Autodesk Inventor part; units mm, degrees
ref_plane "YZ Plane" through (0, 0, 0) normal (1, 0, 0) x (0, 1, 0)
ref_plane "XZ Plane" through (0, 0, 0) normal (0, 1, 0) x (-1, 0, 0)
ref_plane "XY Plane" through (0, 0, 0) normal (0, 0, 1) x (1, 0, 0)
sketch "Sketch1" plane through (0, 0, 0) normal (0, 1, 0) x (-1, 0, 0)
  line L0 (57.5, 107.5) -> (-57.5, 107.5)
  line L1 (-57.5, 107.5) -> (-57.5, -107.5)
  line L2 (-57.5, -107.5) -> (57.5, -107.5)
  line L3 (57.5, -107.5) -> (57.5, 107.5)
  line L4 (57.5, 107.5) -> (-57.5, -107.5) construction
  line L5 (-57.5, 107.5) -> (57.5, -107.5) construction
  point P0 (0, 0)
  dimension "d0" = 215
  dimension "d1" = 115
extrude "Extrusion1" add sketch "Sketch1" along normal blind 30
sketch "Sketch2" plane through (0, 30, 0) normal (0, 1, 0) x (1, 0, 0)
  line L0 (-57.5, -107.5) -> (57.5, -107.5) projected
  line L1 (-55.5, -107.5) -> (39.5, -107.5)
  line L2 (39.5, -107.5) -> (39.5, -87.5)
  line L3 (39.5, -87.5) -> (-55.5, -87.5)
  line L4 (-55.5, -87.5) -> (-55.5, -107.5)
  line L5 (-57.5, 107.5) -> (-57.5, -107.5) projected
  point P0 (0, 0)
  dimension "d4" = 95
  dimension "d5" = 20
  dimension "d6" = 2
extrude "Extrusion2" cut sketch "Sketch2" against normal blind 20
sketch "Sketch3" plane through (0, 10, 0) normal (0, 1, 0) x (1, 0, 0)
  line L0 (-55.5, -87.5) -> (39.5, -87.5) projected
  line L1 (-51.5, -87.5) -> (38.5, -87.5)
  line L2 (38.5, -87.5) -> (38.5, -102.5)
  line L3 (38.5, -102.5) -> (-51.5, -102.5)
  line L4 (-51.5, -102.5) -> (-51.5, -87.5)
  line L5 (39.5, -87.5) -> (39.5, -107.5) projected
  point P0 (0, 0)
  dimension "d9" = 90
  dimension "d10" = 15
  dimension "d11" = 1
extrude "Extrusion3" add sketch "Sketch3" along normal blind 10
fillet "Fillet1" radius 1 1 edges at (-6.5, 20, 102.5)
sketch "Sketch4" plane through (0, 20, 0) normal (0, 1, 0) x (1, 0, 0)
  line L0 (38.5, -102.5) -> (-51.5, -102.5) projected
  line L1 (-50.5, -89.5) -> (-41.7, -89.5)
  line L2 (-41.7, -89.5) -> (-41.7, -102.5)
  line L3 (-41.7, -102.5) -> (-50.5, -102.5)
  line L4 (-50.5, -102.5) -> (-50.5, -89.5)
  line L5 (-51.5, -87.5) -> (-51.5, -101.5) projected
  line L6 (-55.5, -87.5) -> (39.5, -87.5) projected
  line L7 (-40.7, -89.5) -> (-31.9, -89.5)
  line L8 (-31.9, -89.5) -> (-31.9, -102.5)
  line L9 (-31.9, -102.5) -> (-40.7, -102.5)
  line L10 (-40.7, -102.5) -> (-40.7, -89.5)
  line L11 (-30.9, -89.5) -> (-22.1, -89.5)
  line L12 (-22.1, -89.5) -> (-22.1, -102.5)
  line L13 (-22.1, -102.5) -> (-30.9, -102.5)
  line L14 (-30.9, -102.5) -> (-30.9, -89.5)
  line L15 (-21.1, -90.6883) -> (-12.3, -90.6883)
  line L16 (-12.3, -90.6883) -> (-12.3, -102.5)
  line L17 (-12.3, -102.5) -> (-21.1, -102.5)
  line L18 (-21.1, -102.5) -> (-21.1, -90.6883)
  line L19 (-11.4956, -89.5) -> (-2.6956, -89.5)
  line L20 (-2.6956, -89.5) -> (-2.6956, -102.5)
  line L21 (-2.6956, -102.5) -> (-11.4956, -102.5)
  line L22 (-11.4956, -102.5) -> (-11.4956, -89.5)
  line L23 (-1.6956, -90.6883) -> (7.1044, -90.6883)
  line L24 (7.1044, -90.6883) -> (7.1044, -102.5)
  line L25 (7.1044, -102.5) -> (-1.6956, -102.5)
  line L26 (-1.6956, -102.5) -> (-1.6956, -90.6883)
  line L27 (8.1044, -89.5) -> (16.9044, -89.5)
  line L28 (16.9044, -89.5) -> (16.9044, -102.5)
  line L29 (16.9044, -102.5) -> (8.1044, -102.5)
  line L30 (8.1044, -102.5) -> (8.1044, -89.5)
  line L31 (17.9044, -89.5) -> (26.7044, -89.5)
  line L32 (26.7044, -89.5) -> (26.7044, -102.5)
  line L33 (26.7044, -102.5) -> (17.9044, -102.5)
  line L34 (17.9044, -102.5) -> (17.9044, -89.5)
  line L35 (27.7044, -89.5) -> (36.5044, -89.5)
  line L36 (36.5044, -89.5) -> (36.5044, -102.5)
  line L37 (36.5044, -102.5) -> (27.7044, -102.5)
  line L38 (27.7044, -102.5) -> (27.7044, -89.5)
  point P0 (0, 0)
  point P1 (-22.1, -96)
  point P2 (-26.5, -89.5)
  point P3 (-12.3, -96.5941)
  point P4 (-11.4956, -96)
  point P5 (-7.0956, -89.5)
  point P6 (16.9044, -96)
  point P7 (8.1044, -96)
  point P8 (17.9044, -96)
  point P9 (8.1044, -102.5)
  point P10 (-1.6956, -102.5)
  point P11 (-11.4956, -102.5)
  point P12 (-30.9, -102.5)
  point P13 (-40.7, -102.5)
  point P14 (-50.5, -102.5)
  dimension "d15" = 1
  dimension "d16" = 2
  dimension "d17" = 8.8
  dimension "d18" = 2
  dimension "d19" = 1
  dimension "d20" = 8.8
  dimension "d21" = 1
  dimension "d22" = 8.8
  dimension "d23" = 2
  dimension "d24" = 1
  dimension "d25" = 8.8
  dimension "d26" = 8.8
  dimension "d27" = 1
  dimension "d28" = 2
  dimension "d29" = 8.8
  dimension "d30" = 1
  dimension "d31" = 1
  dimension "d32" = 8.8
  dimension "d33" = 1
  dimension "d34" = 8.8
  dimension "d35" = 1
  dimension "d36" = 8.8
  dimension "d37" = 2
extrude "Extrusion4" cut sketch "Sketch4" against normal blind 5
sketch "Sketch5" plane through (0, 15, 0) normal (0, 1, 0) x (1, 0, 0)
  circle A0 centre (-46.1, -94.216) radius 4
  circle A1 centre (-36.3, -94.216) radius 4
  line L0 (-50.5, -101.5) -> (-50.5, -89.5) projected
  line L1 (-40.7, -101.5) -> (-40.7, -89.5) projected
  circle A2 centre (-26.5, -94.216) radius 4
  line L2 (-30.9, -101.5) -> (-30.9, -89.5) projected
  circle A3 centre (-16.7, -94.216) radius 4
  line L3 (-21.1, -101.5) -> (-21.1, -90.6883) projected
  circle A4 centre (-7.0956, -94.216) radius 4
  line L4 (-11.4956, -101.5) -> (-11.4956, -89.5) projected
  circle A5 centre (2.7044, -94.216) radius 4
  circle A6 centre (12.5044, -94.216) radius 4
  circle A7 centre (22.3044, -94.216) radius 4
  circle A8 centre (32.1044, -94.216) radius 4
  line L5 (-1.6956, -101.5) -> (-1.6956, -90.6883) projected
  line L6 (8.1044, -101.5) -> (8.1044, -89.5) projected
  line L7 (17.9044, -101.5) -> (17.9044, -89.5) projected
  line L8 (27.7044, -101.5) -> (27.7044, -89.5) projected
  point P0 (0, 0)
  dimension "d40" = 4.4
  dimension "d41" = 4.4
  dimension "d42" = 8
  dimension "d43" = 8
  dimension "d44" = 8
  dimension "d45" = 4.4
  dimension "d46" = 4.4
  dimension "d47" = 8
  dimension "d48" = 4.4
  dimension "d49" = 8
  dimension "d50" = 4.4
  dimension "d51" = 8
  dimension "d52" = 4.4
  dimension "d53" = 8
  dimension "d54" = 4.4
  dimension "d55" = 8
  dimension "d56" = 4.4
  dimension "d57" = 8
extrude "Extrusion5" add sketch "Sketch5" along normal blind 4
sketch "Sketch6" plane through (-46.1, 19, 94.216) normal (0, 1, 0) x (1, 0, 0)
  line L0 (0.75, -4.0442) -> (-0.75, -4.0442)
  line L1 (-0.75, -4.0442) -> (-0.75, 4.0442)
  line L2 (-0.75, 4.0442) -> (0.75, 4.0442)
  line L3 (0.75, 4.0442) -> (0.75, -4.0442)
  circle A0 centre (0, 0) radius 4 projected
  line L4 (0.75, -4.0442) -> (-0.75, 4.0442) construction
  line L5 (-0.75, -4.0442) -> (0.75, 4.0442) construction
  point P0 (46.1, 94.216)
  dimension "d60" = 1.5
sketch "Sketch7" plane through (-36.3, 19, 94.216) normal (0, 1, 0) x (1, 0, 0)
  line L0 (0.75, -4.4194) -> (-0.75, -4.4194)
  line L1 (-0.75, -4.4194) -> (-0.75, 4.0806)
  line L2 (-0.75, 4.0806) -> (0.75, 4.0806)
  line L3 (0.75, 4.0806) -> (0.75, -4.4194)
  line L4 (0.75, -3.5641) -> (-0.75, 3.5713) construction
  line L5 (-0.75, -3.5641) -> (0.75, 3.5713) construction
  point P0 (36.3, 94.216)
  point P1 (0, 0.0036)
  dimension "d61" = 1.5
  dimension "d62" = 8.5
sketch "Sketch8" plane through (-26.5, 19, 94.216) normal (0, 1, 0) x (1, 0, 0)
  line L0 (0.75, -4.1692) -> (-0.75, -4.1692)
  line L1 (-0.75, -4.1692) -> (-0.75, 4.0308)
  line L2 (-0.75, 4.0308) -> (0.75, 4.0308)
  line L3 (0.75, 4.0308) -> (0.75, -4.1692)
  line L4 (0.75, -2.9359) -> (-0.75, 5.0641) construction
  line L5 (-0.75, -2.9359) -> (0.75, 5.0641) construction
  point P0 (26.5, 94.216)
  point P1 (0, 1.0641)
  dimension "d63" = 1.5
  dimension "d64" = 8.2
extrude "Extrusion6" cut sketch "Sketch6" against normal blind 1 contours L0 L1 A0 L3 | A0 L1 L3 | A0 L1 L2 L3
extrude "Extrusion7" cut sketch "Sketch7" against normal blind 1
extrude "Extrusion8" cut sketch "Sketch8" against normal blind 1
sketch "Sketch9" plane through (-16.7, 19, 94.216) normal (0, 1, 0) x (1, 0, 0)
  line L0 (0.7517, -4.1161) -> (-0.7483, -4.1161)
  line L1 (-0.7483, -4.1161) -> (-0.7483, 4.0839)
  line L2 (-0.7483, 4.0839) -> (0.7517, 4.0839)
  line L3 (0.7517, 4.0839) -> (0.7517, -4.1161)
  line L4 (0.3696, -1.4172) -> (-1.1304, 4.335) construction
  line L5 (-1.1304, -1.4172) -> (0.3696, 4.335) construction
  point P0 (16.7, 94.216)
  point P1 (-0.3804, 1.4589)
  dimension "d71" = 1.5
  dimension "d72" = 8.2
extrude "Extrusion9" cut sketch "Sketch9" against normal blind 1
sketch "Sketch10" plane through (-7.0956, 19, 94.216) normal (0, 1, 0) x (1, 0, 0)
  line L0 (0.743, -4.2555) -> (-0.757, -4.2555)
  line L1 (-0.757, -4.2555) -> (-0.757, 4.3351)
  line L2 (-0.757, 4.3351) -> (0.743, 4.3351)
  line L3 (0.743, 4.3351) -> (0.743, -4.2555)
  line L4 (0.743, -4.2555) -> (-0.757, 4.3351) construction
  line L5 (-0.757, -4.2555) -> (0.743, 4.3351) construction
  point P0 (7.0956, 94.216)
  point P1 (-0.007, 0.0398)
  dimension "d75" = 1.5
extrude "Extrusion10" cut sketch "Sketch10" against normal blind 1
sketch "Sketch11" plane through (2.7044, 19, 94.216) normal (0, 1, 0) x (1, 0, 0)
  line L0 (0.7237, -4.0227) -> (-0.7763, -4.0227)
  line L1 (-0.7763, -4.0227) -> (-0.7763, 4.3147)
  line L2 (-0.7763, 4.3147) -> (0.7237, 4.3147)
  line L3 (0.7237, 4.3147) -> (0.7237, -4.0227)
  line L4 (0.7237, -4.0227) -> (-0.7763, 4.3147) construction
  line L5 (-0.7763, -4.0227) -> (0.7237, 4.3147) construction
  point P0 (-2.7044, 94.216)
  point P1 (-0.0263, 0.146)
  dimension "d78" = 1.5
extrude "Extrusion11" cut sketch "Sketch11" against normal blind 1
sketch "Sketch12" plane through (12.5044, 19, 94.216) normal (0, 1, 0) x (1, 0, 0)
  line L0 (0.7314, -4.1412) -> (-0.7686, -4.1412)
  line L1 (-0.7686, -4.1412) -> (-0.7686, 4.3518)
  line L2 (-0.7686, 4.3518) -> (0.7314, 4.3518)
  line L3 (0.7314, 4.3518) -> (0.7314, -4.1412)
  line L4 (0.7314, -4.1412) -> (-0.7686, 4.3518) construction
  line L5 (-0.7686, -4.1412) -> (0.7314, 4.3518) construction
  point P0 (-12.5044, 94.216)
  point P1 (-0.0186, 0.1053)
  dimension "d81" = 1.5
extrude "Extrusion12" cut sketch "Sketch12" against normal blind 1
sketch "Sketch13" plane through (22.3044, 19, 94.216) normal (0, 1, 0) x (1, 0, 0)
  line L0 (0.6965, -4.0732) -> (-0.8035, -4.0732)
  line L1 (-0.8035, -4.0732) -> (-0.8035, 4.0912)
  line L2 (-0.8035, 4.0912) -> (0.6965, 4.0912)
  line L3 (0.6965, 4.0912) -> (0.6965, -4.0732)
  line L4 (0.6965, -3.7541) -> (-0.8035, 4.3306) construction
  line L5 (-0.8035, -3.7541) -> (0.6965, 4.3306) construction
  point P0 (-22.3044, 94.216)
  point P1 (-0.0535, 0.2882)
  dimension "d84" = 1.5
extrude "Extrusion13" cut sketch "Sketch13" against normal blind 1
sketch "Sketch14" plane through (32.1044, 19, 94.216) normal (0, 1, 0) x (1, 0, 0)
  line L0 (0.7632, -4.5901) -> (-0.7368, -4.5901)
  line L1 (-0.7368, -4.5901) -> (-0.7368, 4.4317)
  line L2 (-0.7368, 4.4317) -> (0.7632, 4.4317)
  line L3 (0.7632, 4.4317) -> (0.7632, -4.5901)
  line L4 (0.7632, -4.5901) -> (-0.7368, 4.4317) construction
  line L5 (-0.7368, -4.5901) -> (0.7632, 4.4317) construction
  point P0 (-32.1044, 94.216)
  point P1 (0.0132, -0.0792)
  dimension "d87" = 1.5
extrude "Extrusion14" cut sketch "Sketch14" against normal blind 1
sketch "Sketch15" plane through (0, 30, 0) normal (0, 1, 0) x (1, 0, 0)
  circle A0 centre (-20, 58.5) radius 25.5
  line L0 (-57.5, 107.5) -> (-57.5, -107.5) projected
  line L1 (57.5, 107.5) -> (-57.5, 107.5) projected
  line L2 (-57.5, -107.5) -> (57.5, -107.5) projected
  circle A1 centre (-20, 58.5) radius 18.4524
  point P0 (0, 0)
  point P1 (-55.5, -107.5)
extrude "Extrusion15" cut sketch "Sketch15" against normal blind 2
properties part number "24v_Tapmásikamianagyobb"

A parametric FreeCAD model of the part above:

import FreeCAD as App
import Part
import Sketcher

V = App.Vector


def edges_at(feature, points):
    """Names of the edges that pass closest to the given points."""
    edges = feature.Shape.Edges
    near = lambda p: min(range(len(edges)), key=lambda i: edges[i].distToShape(Part.Vertex(*p))[0])
    return sorted({f"Edge{near(p) + 1}" for p in points})

doc = App.newDocument("Part")
params = doc.addObject("Spreadsheet::Sheet", "Params")
for row, (alias, value) in enumerate([
    ("sketch1_width", "115 mm"),
    ("sketch1_height", "215 mm"),
    ("pad1_length", "30 mm"),
    ("sketch2_width", "95 mm"),
    ("sketch2_height", "20 mm"),
    ("pocket1_length", "20 mm"),
    ("sketch3_width", "90 mm"),
    ("sketch3_height", "15 mm"),
    ("pad2_length", "10 mm"),
    ("fillet_radius", "1 mm"),
    ("sketch4_width", "8.8 mm"),
    ("sketch4_height", "13 mm"),
    ("pocket2_length", "5 mm"),
    ("sketch5_diameter", "8 mm"),
    ("pad3_length", "4 mm"),
    ("sketch6_width", "1.5 mm"),
    ("pocket3_length", "1 mm"),
    ("sketch7_width", "1.5 mm"),
    ("sketch7_height", "8.5 mm"),
    ("pocket4_length", "1 mm"),
    ("sketch8_width", "1.5 mm"),
    ("sketch8_height", "8.2 mm"),
    ("pocket5_length", "1 mm"),
    ("sketch9_width", "1.5 mm"),
    ("sketch9_height", "8.2 mm"),
    ("pocket6_length", "1 mm"),
    ("sketch10_width", "1.5 mm"),
    ("pocket7_length", "1 mm"),
    ("sketch11_width", "1.5 mm"),
    ("pocket8_length", "1 mm"),
    ("sketch12_width", "1.5 mm"),
    ("pocket9_length", "1 mm"),
    ("sketch13_width", "1.5 mm"),
    ("pocket10_length", "1 mm"),
    ("sketch14_width", "1.5 mm"),
    ("pocket11_length", "1 mm"),
    ("sketch15_diameter", "51 mm"),
    ("pocket12_length", "2 mm"),
], start=1):
    params.set(f"A{row}", alias)
    params.set(f"B{row}", "=" + value)
    params.setAlias(f"B{row}", alias)

body = doc.addObject("PartDesign::Body", "Body")

# Sketch on XZ plane
sketch1 = body.newObject("Sketcher::SketchObject", "Sketch")
sketch1.AttachmentSupport = (doc.getObject("XZ_Plane"), [""])
sketch1.MapMode = "FlatFace"
sketch1.addGeometry([
    Part.LineSegment(V(-58, -108, 0), V(-58, 108, 0)),
    Part.LineSegment(V(-58, 108, 0), V(58, 108, 0)),
    Part.LineSegment(V(58, 108, 0), V(58, -108, 0)),
    Part.LineSegment(V(58, -108, 0), V(-58, -108, 0)),
], False)
sketch1.addConstraint([
    Sketcher.Constraint("Coincident", 0, 2, 1, 1),
    Sketcher.Constraint("Coincident", 1, 2, 2, 1),
    Sketcher.Constraint("Coincident", 2, 2, 3, 1),
    Sketcher.Constraint("Coincident", 3, 2, 0, 1),
    Sketcher.Constraint("Vertical", 0),
    Sketcher.Constraint("Horizontal", 1),
    Sketcher.Constraint("Vertical", 2),
    Sketcher.Constraint("Horizontal", 3),
    Sketcher.Constraint("Symmetric", 0, 2, 2, 2, -1, 1),
    Sketcher.Constraint("DistanceX", 1, 1, 1, 2, 115.0),
    Sketcher.Constraint("DistanceY", 0, 1, 0, 2, 215.0),
])
sketch1.setExpression("Constraints[9]", "Params.sketch1_width")
sketch1.setExpression("Constraints[10]", "Params.sketch1_height")
pad1 = body.newObject("PartDesign::Pad", "Pad")
pad1.Profile = sketch1
pad1.setExpression("Length", "Params.pad1_length")
pad1.Reversed = True

# Sketch on XZ plane
sketch2 = body.newObject("Sketcher::SketchObject", "Sketch001")
sketch2.AttachmentSupport = (doc.getObject("XZ_Plane"), [""])
sketch2.MapMode = "FlatFace"
sketch2.AttachmentOffset = App.Placement(V(0, 0, -30), App.Rotation())
sketch2.addGeometry([
    Part.LineSegment(V(-56, 88, 0), V(-56, 108, 0)),
    Part.LineSegment(V(-56, 108, 0), V(40, 108, 0)),
    Part.LineSegment(V(40, 108, 0), V(40, 88, 0)),
    Part.LineSegment(V(40, 88, 0), V(-56, 88, 0)),
], False)
sketch2.addConstraint([
    Sketcher.Constraint("Coincident", 0, 2, 1, 1),
    Sketcher.Constraint("Coincident", 1, 2, 2, 1),
    Sketcher.Constraint("Coincident", 2, 2, 3, 1),
    Sketcher.Constraint("Coincident", 3, 2, 0, 1),
    Sketcher.Constraint("Vertical", 0),
    Sketcher.Constraint("Horizontal", 1),
    Sketcher.Constraint("Vertical", 2),
    Sketcher.Constraint("Horizontal", 3),
    Sketcher.Constraint("DistanceX", 1, 1, 1, 2, 95.0),
    Sketcher.Constraint("DistanceY", 0, 1, 0, 2, 20.0),
    Sketcher.Constraint("DistanceX", 0, 2, -1, 1, 55.5),
    Sketcher.Constraint("DistanceY", -1, 1, 0, 2, 107.5),
])
sketch2.setExpression("Constraints[8]", "Params.sketch2_width")
sketch2.setExpression("Constraints[9]", "Params.sketch2_height")
pocket1 = body.newObject("PartDesign::Pocket", "Pocket")
pocket1.Profile = sketch2
pocket1.setExpression("Length", "Params.pocket1_length")
pocket1.Reversed = True

# Sketch on XZ plane
sketch3 = body.newObject("Sketcher::SketchObject", "Sketch002")
sketch3.AttachmentSupport = (doc.getObject("XZ_Plane"), [""])
sketch3.MapMode = "FlatFace"
sketch3.AttachmentOffset = App.Placement(V(0, 0, -10), App.Rotation())
sketch3.addGeometry([
    Part.LineSegment(V(38, 88, 0), V(-52, 88, 0)),
    Part.LineSegment(V(-52, 88, 0), V(-52, 102, 0)),
    Part.LineSegment(V(-52, 102, 0), V(38, 102, 0)),
    Part.LineSegment(V(38, 102, 0), V(38, 88, 0)),
], False)
sketch3.addConstraint([
    Sketcher.Constraint("Coincident", 0, 2, 1, 1),
    Sketcher.Constraint("Coincident", 1, 2, 2, 1),
    Sketcher.Constraint("Coincident", 2, 2, 3, 1),
    Sketcher.Constraint("Coincident", 3, 2, 0, 1),
    Sketcher.Constraint("Horizontal", 0),
    Sketcher.Constraint("Vertical", 1),
    Sketcher.Constraint("Horizontal", 2),
    Sketcher.Constraint("Vertical", 3),
    Sketcher.Constraint("DistanceX", 0, 2, 0, 1, 90.0),
    Sketcher.Constraint("DistanceY", 1, 1, 1, 2, 15.0),
    Sketcher.Constraint("DistanceX", 0, 2, -1, 1, 51.5),
    Sketcher.Constraint("DistanceY", -1, 1, 0, 2, 87.5),
])
sketch3.setExpression("Constraints[8]", "Params.sketch3_width")
sketch3.setExpression("Constraints[9]", "Params.sketch3_height")
pad2 = body.newObject("PartDesign::Pad", "Pad001")
pad2.Profile = sketch3
pad2.setExpression("Length", "Params.pad2_length")
pad2.Reversed = True
doc.recompute()

fillet = body.newObject("PartDesign::Fillet", "Fillet")
fillet.Base = (pad2, edges_at(pad2, [(-6.5, 20, 102.5)]))
fillet.setExpression("Radius", "Params.fillet_radius")

# Sketch on XZ plane
sketch4 = body.newObject("Sketcher::SketchObject", "Sketch003")
sketch4.AttachmentSupport = (doc.getObject("XZ_Plane"), [""])
sketch4.MapMode = "FlatFace"
sketch4.AttachmentOffset = App.Placement(V(0, 0, -20), App.Rotation())
sketch4.addGeometry([
    Part.LineSegment(V(-50, 102, 0), V(-42, 102, 0)),  # 0
    Part.LineSegment(V(-42, 102, 0), V(-42, 90, 0)),  # 1
    Part.LineSegment(V(-42, 90, 0), V(-50, 90, 0)),  # 2
    Part.LineSegment(V(-50, 90, 0), V(-50, 102, 0)),  # 3
    Part.LineSegment(V(-41, 102, 0), V(-32, 102, 0)),  # 4
    Part.LineSegment(V(-32, 102, 0), V(-32, 90, 0)),  # 5
    Part.LineSegment(V(-32, 90, 0), V(-41, 90, 0)),  # 6
    Part.LineSegment(V(-41, 90, 0), V(-41, 102, 0)),  # 7
    Part.LineSegment(V(-31, 102, 0), V(-22, 102, 0)),  # 8
    Part.LineSegment(V(-22, 102, 0), V(-22, 90, 0)),  # 9
    Part.LineSegment(V(-22, 90, 0), V(-31, 90, 0)),  # 10
    Part.LineSegment(V(-31, 90, 0), V(-31, 102, 0)),  # 11
    Part.LineSegment(V(-21, 102, 0), V(-12, 102, 0)),  # 12
    Part.LineSegment(V(-12, 102, 0), V(-12, 91, 0)),  # 13
    Part.LineSegment(V(-12, 91, 0), V(-21, 91, 0)),  # 14
    Part.LineSegment(V(-21, 91, 0), V(-21, 102, 0)),  # 15
    Part.LineSegment(V(-11, 102, 0), V(-3, 102, 0)),  # 16
    Part.LineSegment(V(-3, 102, 0), V(-3, 90, 0)),  # 17
    Part.LineSegment(V(-3, 90, 0), V(-11, 90, 0)),  # 18
    Part.LineSegment(V(-11, 90, 0), V(-11, 102, 0)),  # 19
    Part.LineSegment(V(-2, 102, 0), V(7, 102, 0)),  # 20
    Part.LineSegment(V(7, 102, 0), V(7, 91, 0)),  # 21
    Part.LineSegment(V(7, 91, 0), V(-2, 91, 0)),  # 22
    Part.LineSegment(V(-2, 91, 0), V(-2, 102, 0)),  # 23
    Part.LineSegment(V(8, 102, 0), V(17, 102, 0)),  # 24
    Part.LineSegment(V(17, 102, 0), V(17, 90, 0)),  # 25
    Part.LineSegment(V(17, 90, 0), V(8, 90, 0)),  # 26
    Part.LineSegment(V(8, 90, 0), V(8, 102, 0)),  # 27
    Part.LineSegment(V(18, 102, 0), V(27, 102, 0)),  # 28
    Part.LineSegment(V(27, 102, 0), V(27, 90, 0)),  # 29
    Part.LineSegment(V(27, 90, 0), V(18, 90, 0)),  # 30
    Part.LineSegment(V(18, 90, 0), V(18, 102, 0)),  # 31
    Part.LineSegment(V(28, 102, 0), V(37, 102, 0)),  # 32
    Part.LineSegment(V(37, 102, 0), V(37, 90, 0)),  # 33
    Part.LineSegment(V(37, 90, 0), V(28, 90, 0)),  # 34
    Part.LineSegment(V(28, 90, 0), V(28, 102, 0)),  # 35
], False)
sketch4.addConstraint([
    Sketcher.Constraint("Coincident", 0, 2, 1, 1),
    Sketcher.Constraint("Coincident", 1, 2, 2, 1),
    Sketcher.Constraint("Coincident", 2, 2, 3, 1),
    Sketcher.Constraint("Coincident", 3, 2, 0, 1),
    Sketcher.Constraint("Coincident", 4, 2, 5, 1),
    Sketcher.Constraint("Coincident", 5, 2, 6, 1),
    Sketcher.Constraint("Coincident", 6, 2, 7, 1),
    Sketcher.Constraint("Coincident", 7, 2, 4, 1),
    Sketcher.Constraint("Coincident", 8, 2, 9, 1),
    Sketcher.Constraint("Coincident", 9, 2, 10, 1),
    Sketcher.Constraint("Coincident", 10, 2, 11, 1),
    Sketcher.Constraint("Coincident", 11, 2, 8, 1),
    Sketcher.Constraint("Coincident", 12, 2, 13, 1),
    Sketcher.Constraint("Coincident", 13, 2, 14, 1),
    Sketcher.Constraint("Coincident", 14, 2, 15, 1),
    Sketcher.Constraint("Coincident", 15, 2, 12, 1),
    Sketcher.Constraint("Coincident", 16, 2, 17, 1),
    Sketcher.Constraint("Coincident", 17, 2, 18, 1),
    Sketcher.Constraint("Coincident", 18, 2, 19, 1),
    Sketcher.Constraint("Coincident", 19, 2, 16, 1),
    Sketcher.Constraint("Coincident", 20, 2, 21, 1),
    Sketcher.Constraint("Coincident", 21, 2, 22, 1),
    Sketcher.Constraint("Coincident", 22, 2, 23, 1),
    Sketcher.Constraint("Coincident", 23, 2, 20, 1),
    Sketcher.Constraint("Coincident", 24, 2, 25, 1),
    Sketcher.Constraint("Coincident", 25, 2, 26, 1),
    Sketcher.Constraint("Coincident", 26, 2, 27, 1),
    Sketcher.Constraint("Coincident", 27, 2, 24, 1),
    Sketcher.Constraint("Coincident", 28, 2, 29, 1),
    Sketcher.Constraint("Coincident", 29, 2, 30, 1),
    Sketcher.Constraint("Coincident", 30, 2, 31, 1),
    Sketcher.Constraint("Coincident", 31, 2, 28, 1),
    Sketcher.Constraint("Coincident", 32, 2, 33, 1),
    Sketcher.Constraint("Coincident", 33, 2, 34, 1),
    Sketcher.Constraint("Coincident", 34, 2, 35, 1),
    Sketcher.Constraint("Coincident", 35, 2, 32, 1),
    Sketcher.Constraint("Horizontal", 0),
    Sketcher.Constraint("Vertical", 1),
    Sketcher.Constraint("Horizontal", 2),
    Sketcher.Constraint("Vertical", 3),
    Sketcher.Constraint("Horizontal", 4),
    Sketcher.Constraint("Vertical", 5),
    Sketcher.Constraint("Horizontal", 6),
    Sketcher.Constraint("Vertical", 7),
    Sketcher.Constraint("Horizontal", 8),
    Sketcher.Constraint("Vertical", 9),
    Sketcher.Constraint("Horizontal", 10),
    Sketcher.Constraint("Vertical", 11),
    Sketcher.Constraint("Horizontal", 12),
    Sketcher.Constraint("Vertical", 13),
    Sketcher.Constraint("Horizontal", 14),
    Sketcher.Constraint("Vertical", 15),
    Sketcher.Constraint("Horizontal", 16),
    Sketcher.Constraint("Vertical", 17),
    Sketcher.Constraint("Horizontal", 18),
    Sketcher.Constraint("Vertical", 19),
    Sketcher.Constraint("Horizontal", 20),
    Sketcher.Constraint("Vertical", 21),
    Sketcher.Constraint("Horizontal", 22),
    Sketcher.Constraint("Vertical", 23),
    Sketcher.Constraint("Horizontal", 24),
    Sketcher.Constraint("Vertical", 25),
    Sketcher.Constraint("Horizontal", 26),
    Sketcher.Constraint("Vertical", 27),
    Sketcher.Constraint("Horizontal", 28),
    Sketcher.Constraint("Vertical", 29),
    Sketcher.Constraint("Horizontal", 30),
    Sketcher.Constraint("Vertical", 31),
    Sketcher.Constraint("Horizontal", 32),
    Sketcher.Constraint("Vertical", 33),
    Sketcher.Constraint("Horizontal", 34),
    Sketcher.Constraint("Vertical", 35),
    Sketcher.Constraint("Horizontal", 3, 2, 4, 2),
    Sketcher.Constraint("Horizontal", 2, 2, 5, 2),
    Sketcher.Constraint("Horizontal", 7, 2, 8, 2),
    Sketcher.Constraint("Horizontal", 6, 2, 9, 2),
    Sketcher.Constraint("Horizontal", 11, 2, 12, 2),
    Sketcher.Constraint("Horizontal", 15, 2, 16, 2),
    Sketcher.Constraint("Horizontal", 10, 2, 17, 2),
    Sketcher.Constraint("Horizontal", 19, 2, 20, 2),
    Sketcher.Constraint("Horizontal", 14, 2, 21, 2),
    Sketcher.Constraint("Horizontal", 23, 2, 24, 2),
    Sketcher.Constraint("Horizontal", 18, 2, 25, 2),
    Sketcher.Constraint("Horizontal", 27, 2, 28, 2),
    Sketcher.Constraint("Horizontal", 26, 2, 29, 2),
    Sketcher.Constraint("Horizontal", 31, 2, 32, 2),
    Sketcher.Constraint("Horizontal", 30, 2, 33, 2),
    Sketcher.Constraint("Equal", 2, 4),
    Sketcher.Constraint("Equal", 6, 8),
    Sketcher.Constraint("Equal", 10, 12),
    Sketcher.Constraint("Equal", 14, 16),
    Sketcher.Constraint("Equal", 18, 20),
    Sketcher.Constraint("Equal", 22, 24),
    Sketcher.Constraint("Equal", 26, 28),
    Sketcher.Constraint("Equal", 30, 32),
    Sketcher.Constraint("DistanceX", 0, 1, 0, 2, 8.8),
    Sketcher.Constraint("DistanceX", 1, 2, 6, 2, 1.0),
    Sketcher.Constraint("DistanceX", 5, 2, 10, 2, 1.0),
    Sketcher.Constraint("DistanceX", 9, 2, 14, 2, 1.0),
    Sketcher.Constraint("DistanceX", 17, 2, 22, 2, 1.0),
    Sketcher.Constraint("DistanceX", 21, 2, 26, 2, 1.0),
    Sketcher.Constraint("DistanceX", 25, 2, 30, 2, 1.0),
    Sketcher.Constraint("DistanceX", 29, 2, 34, 2, 1.0),
    Sketcher.Constraint("DistanceY", 1, 2, 1, 1, 13.0),
    Sketcher.Constraint("DistanceX", 0, 2, -1, 1, 41.7),
    Sketcher.Constraint("DistanceY", -1, 1, 0, 2, 102.5),
    Sketcher.Constraint("DistanceY", 13, 2, 13, 1, 11.8117),
    Sketcher.Constraint("DistanceX", 16, 2, -1, 1, 2.6956),
])
sketch4.setExpression("Constraints[95]", "Params.sketch4_width")
sketch4.setExpression("Constraints[103]", "Params.sketch4_height")
pocket2 = body.newObject("PartDesign::Pocket", "Pocket001")
pocket2.Profile = sketch4
pocket2.setExpression("Length", "Params.pocket2_length")
pocket2.Reversed = True

# Sketch on XZ plane
sketch5 = body.newObject("Sketcher::SketchObject", "Sketch004")
sketch5.AttachmentSupport = (doc.getObject("XZ_Plane"), [""])
sketch5.MapMode = "FlatFace"
sketch5.AttachmentOffset = App.Placement(V(0, 0, -15), App.Rotation())
sketch5.addGeometry([
    Part.Circle(V(-46.1, 94.2, 0), V(0, 0, 1), 4),  # 0
    Part.Circle(V(-36.3, 94.2, 0), V(0, 0, 1), 4),  # 1
    Part.Circle(V(-26.5, 94.2, 0), V(0, 0, 1), 4),  # 2
    Part.Circle(V(-16.7, 94.2, 0), V(0, 0, 1), 4),  # 3
    Part.Circle(V(-7.1, 94.2, 0), V(0, 0, 1), 4),  # 4
    Part.Circle(V(2.7, 94.2, 0), V(0, 0, 1), 4),  # 5
    Part.Circle(V(12.5, 94.2, 0), V(0, 0, 1), 4),  # 6
    Part.Circle(V(22.3, 94.2, 0), V(0, 0, 1), 4),  # 7
    Part.Circle(V(32.1, 94.2, 0), V(0, 0, 1), 4),  # 8
], False)
sketch5.addConstraint([
    Sketcher.Constraint("Equal", 0, 1),
    Sketcher.Constraint("Equal", 1, 2),
    Sketcher.Constraint("Equal", 2, 3),
    Sketcher.Constraint("Equal", 3, 4),
    Sketcher.Constraint("Equal", 4, 5),
    Sketcher.Constraint("Equal", 5, 6),
    Sketcher.Constraint("Equal", 6, 7),
    Sketcher.Constraint("Equal", 7, 8),
    Sketcher.Constraint("Horizontal", 0, 3, 1, 3),
    Sketcher.Constraint("Horizontal", 1, 3, 2, 3),
    Sketcher.Constraint("Horizontal", 2, 3, 3, 3),
    Sketcher.Constraint("Horizontal", 3, 3, 4, 3),
    Sketcher.Constraint("Horizontal", 4, 3, 5, 3),
    Sketcher.Constraint("Horizontal", 5, 3, 6, 3),
    Sketcher.Constraint("Horizontal", 6, 3, 7, 3),
    Sketcher.Constraint("Horizontal", 7, 3, 8, 3),
    Sketcher.Constraint("Diameter", 0, 8.0),
    Sketcher.Constraint("DistanceX", 0, 3, -1, 1, 46.1),
    Sketcher.Constraint("DistanceX", 1, 3, -1, 1, 36.3),
    Sketcher.Constraint("DistanceX", 2, 3, -1, 1, 26.5),
    Sketcher.Constraint("DistanceX", 3, 3, -1, 1, 16.7),
    Sketcher.Constraint("DistanceX", 4, 3, 5, 3, 9.8),
    Sketcher.Constraint("DistanceX", 5, 3, 6, 3, 9.8),
    Sketcher.Constraint("DistanceX", 6, 3, 7, 3, 9.8),
    Sketcher.Constraint("DistanceX", 7, 3, 8, 3, 9.8),
    Sketcher.Constraint("DistanceY", -1, 1, 0, 3, 94.216),
    Sketcher.Constraint("DistanceX", 4, 3, -1, 1, 7.0956),
])
sketch5.setExpression("Constraints[16]", "Params.sketch5_diameter")
pad3 = body.newObject("PartDesign::Pad", "Pad002")
pad3.Profile = sketch5
pad3.setExpression("Length", "Params.pad3_length")
pad3.Reversed = True

# Sketch on XZ plane
sketch6 = body.newObject("Sketcher::SketchObject", "Sketch005")
sketch6.AttachmentSupport = (doc.getObject("XZ_Plane"), [""])
sketch6.MapMode = "FlatFace"
sketch6.AttachmentOffset = App.Placement(V(0, 0, -19), App.Rotation())
sketch6.addGeometry([
    Part.LineSegment(V(-46.9, 98.3, 0), V(-45.4, 98.3, 0)),
    Part.LineSegment(V(-45.4, 98.3, 0), V(-45.4, 90.2, 0)),
    Part.LineSegment(V(-45.4, 90.2, 0), V(-46.9, 90.2, 0)),
    Part.LineSegment(V(-46.9, 90.2, 0), V(-46.9, 98.3, 0)),
], False)
sketch6.addConstraint([
    Sketcher.Constraint("Coincident", 0, 2, 1, 1),
    Sketcher.Constraint("Coincident", 1, 2, 2, 1),
    Sketcher.Constraint("Coincident", 2, 2, 3, 1),
    Sketcher.Constraint("Coincident", 3, 2, 0, 1),
    Sketcher.Constraint("Horizontal", 0),
    Sketcher.Constraint("Vertical", 1),
    Sketcher.Constraint("Horizontal", 2),
    Sketcher.Constraint("Vertical", 3),
    Sketcher.Constraint("DistanceX", 0, 1, 0, 2, 1.5),
    Sketcher.Constraint("DistanceX", 0, 2, -1, 1, 45.35),
    Sketcher.Constraint("DistanceY", 1, 2, 1, 1, 8.0884),
    Sketcher.Constraint("DistanceY", -1, 1, 0, 2, 98.2602),
])
sketch6.setExpression("Constraints[8]", "Params.sketch6_width")
pocket3 = body.newObject("PartDesign::Pocket", "Pocket002")
pocket3.Profile = sketch6
pocket3.setExpression("Length", "Params.pocket3_length")
pocket3.Reversed = True

# Sketch on XZ plane
sketch7 = body.newObject("Sketcher::SketchObject", "Sketch006")
sketch7.AttachmentSupport = (doc.getObject("XZ_Plane"), [""])
sketch7.MapMode = "FlatFace"
sketch7.AttachmentOffset = App.Placement(V(0, 0, -19), App.Rotation())
sketch7.addGeometry([
    Part.LineSegment(V(-37, 98.6, 0), V(-35.5, 98.6, 0)),
    Part.LineSegment(V(-35.5, 98.6, 0), V(-35.5, 90.1, 0)),
    Part.LineSegment(V(-35.5, 90.1, 0), V(-37, 90.1, 0)),
    Part.LineSegment(V(-37, 90.1, 0), V(-37, 98.6, 0)),
], False)
sketch7.addConstraint([
    Sketcher.Constraint("Coincident", 0, 2, 1, 1),
    Sketcher.Constraint("Coincident", 1, 2, 2, 1),
    Sketcher.Constraint("Coincident", 2, 2, 3, 1),
    Sketcher.Constraint("Coincident", 3, 2, 0, 1),
    Sketcher.Constraint("Horizontal", 0),
    Sketcher.Constraint("Vertical", 1),
    Sketcher.Constraint("Horizontal", 2),
    Sketcher.Constraint("Vertical", 3),
    Sketcher.Constraint("DistanceX", 0, 1, 0, 2, 1.5),
    Sketcher.Constraint("DistanceY", 1, 2, 1, 1, 8.5),
    Sketcher.Constraint("DistanceX", 0, 2, -1, 1, 35.55),
    Sketcher.Constraint("DistanceY", -1, 1, 0, 2, 98.6354),
])
sketch7.setExpression("Constraints[8]", "Params.sketch7_width")
sketch7.setExpression("Constraints[9]", "Params.sketch7_height")
pocket4 = body.newObject("PartDesign::Pocket", "Pocket003")
pocket4.Profile = sketch7
pocket4.setExpression("Length", "Params.pocket4_length")
pocket4.Reversed = True

# Sketch on XZ plane
sketch8 = body.newObject("Sketcher::SketchObject", "Sketch007")
sketch8.AttachmentSupport = (doc.getObject("XZ_Plane"), [""])
sketch8.MapMode = "FlatFace"
sketch8.AttachmentOffset = App.Placement(V(0, 0, -19), App.Rotation())
sketch8.addGeometry([
    Part.LineSegment(V(-27.2, 98.4, 0), V(-25.8, 98.4, 0)),
    Part.LineSegment(V(-25.8, 98.4, 0), V(-25.8, 90.2, 0)),
    Part.LineSegment(V(-25.8, 90.2, 0), V(-27.2, 90.2, 0)),
    Part.LineSegment(V(-27.2, 90.2, 0), V(-27.2, 98.4, 0)),
], False)
sketch8.addConstraint([
    Sketcher.Constraint("Coincident", 0, 2, 1, 1),
    Sketcher.Constraint("Coincident", 1, 2, 2, 1),
    Sketcher.Constraint("Coincident", 2, 2, 3, 1),
    Sketcher.Constraint("Coincident", 3, 2, 0, 1),
    Sketcher.Constraint("Horizontal", 0),
    Sketcher.Constraint("Vertical", 1),
    Sketcher.Constraint("Horizontal", 2),
    Sketcher.Constraint("Vertical", 3),
    Sketcher.Constraint("DistanceX", 0, 1, 0, 2, 1.5),
    Sketcher.Constraint("DistanceY", 1, 2, 1, 1, 8.2),
    Sketcher.Constraint("DistanceX", 0, 2, -1, 1, 25.75),
    Sketcher.Constraint("DistanceY", -1, 1, 0, 2, 98.3852),
])
sketch8.setExpression("Constraints[8]", "Params.sketch8_width")
sketch8.setExpression("Constraints[9]", "Params.sketch8_height")
pocket5 = body.newObject("PartDesign::Pocket", "Pocket004")
pocket5.Profile = sketch8
pocket5.setExpression("Length", "Params.pocket5_length")
pocket5.Reversed = True

# Sketch on XZ plane
sketch9 = body.newObject("Sketcher::SketchObject", "Sketch008")
sketch9.AttachmentSupport = (doc.getObject("XZ_Plane"), [""])
sketch9.MapMode = "FlatFace"
sketch9.AttachmentOffset = App.Placement(V(0, 0, -19), App.Rotation())
sketch9.addGeometry([
    Part.LineSegment(V(-17.4, 98.3, 0), V(-15.9, 98.3, 0)),
    Part.LineSegment(V(-15.9, 98.3, 0), V(-15.9, 90.1, 0)),
    Part.LineSegment(V(-15.9, 90.1, 0), V(-17.4, 90.1, 0)),
    Part.LineSegment(V(-17.4, 90.1, 0), V(-17.4, 98.3, 0)),
], False)
sketch9.addConstraint([
    Sketcher.Constraint("Coincident", 0, 2, 1, 1),
    Sketcher.Constraint("Coincident", 1, 2, 2, 1),
    Sketcher.Constraint("Coincident", 2, 2, 3, 1),
    Sketcher.Constraint("Coincident", 3, 2, 0, 1),
    Sketcher.Constraint("Horizontal", 0),
    Sketcher.Constraint("Vertical", 1),
    Sketcher.Constraint("Horizontal", 2),
    Sketcher.Constraint("Vertical", 3),
    Sketcher.Constraint("DistanceX", 0, 1, 0, 2, 1.5),
    Sketcher.Constraint("DistanceY", 1, 2, 1, 1, 8.2),
    Sketcher.Constraint("DistanceY", -1, 1, 0, 2, 98.332),
    Sketcher.Constraint("DistanceX", 0, 2, -1, 1, 15.9483),
])
sketch9.setExpression("Constraints[8]", "Params.sketch9_width")
sketch9.setExpression("Constraints[9]", "Params.sketch9_height")
pocket6 = body.newObject("PartDesign::Pocket", "Pocket005")
pocket6.Profile = sketch9
pocket6.setExpression("Length", "Params.pocket6_length")
pocket6.Reversed = True

# Sketch on XZ plane
sketch10 = body.newObject("Sketcher::SketchObject", "Sketch009")
sketch10.AttachmentSupport = (doc.getObject("XZ_Plane"), [""])
sketch10.MapMode = "FlatFace"
sketch10.AttachmentOffset = App.Placement(V(0, 0, -19), App.Rotation())
sketch10.addGeometry([
    Part.LineSegment(V(-7.9, 98.5, 0), V(-6.4, 98.5, 0)),
    Part.LineSegment(V(-6.4, 98.5, 0), V(-6.4, 89.9, 0)),
    Part.LineSegment(V(-6.4, 89.9, 0), V(-7.9, 89.9, 0)),
    Part.LineSegment(V(-7.9, 89.9, 0), V(-7.9, 98.5, 0)),
], False)
sketch10.addConstraint([
    Sketcher.Constraint("Coincident", 0, 2, 1, 1),
    Sketcher.Constraint("Coincident", 1, 2, 2, 1),
    Sketcher.Constraint("Coincident", 2, 2, 3, 1),
    Sketcher.Constraint("Coincident", 3, 2, 0, 1),
    Sketcher.Constraint("Horizontal", 0),
    Sketcher.Constraint("Vertical", 1),
    Sketcher.Constraint("Horizontal", 2),
    Sketcher.Constraint("Vertical", 3),
    Sketcher.Constraint("DistanceX", 0, 1, 0, 2, 1.5),
    Sketcher.Constraint("DistanceY", 1, 2, 1, 1, 8.5906),
    Sketcher.Constraint("DistanceY", -1, 1, 1, 2, 89.881),
    Sketcher.Constraint("DistanceX", 0, 2, -1, 1, 6.3526),
])
sketch10.setExpression("Constraints[8]", "Params.sketch10_width")
pocket7 = body.newObject("PartDesign::Pocket", "Pocket006")
pocket7.Profile = sketch10
pocket7.setExpression("Length", "Params.pocket7_length")
pocket7.Reversed = True

# Sketch on XZ plane
sketch11 = body.newObject("Sketcher::SketchObject", "Sketch010")
sketch11.AttachmentSupport = (doc.getObject("XZ_Plane"), [""])
sketch11.MapMode = "FlatFace"
sketch11.AttachmentOffset = App.Placement(V(0, 0, -19), App.Rotation())
sketch11.addGeometry([
    Part.LineSegment(V(1.9, 98.2, 0), V(3.4, 98.2, 0)),
    Part.LineSegment(V(3.4, 98.2, 0), V(3.4, 89.9, 0)),
    Part.LineSegment(V(3.4, 89.9, 0), V(1.9, 89.9, 0)),
    Part.LineSegment(V(1.9, 89.9, 0), V(1.9, 98.2, 0)),
], False)
sketch11.addConstraint([
    Sketcher.Constraint("Coincident", 0, 2, 1, 1),
    Sketcher.Constraint("Coincident", 1, 2, 2, 1),
    Sketcher.Constraint("Coincident", 2, 2, 3, 1),
    Sketcher.Constraint("Coincident", 3, 2, 0, 1),
    Sketcher.Constraint("Horizontal", 0),
    Sketcher.Constraint("Vertical", 1),
    Sketcher.Constraint("Horizontal", 2),
    Sketcher.Constraint("Vertical", 3),
    Sketcher.Constraint("DistanceX", 0, 1, 0, 2, 1.5),
    Sketcher.Constraint("DistanceY", 1, 2, 1, 1, 8.3374),
    Sketcher.Constraint("DistanceX", -1, 1, 0, 2, 3.428),
    Sketcher.Constraint("DistanceY", -1, 1, 0, 2, 98.2387),
])
sketch11.setExpression("Constraints[8]", "Params.sketch11_width")
pocket8 = body.newObject("PartDesign::Pocket", "Pocket007")
pocket8.Profile = sketch11
pocket8.setExpression("Length", "Params.pocket8_length")
pocket8.Reversed = True

# Sketch on XZ plane
sketch12 = body.newObject("Sketcher::SketchObject", "Sketch011")
sketch12.AttachmentSupport = (doc.getObject("XZ_Plane"), [""])
sketch12.MapMode = "FlatFace"
sketch12.AttachmentOffset = App.Placement(V(0, 0, -19), App.Rotation())
sketch12.addGeometry([
    Part.LineSegment(V(11.7, 98.4, 0), V(13.2, 98.4, 0)),
    Part.LineSegment(V(13.2, 98.4, 0), V(13.2, 89.9, 0)),
    Part.LineSegment(V(13.2, 89.9, 0), V(11.7, 89.9, 0)),
    Part.LineSegment(V(11.7, 89.9, 0), V(11.7, 98.4, 0)),
], False)
sketch12.addConstraint([
    Sketcher.Constraint("Coincident", 0, 2, 1, 1),
    Sketcher.Constraint("Coincident", 1, 2, 2, 1),
    Sketcher.Constraint("Coincident", 2, 2, 3, 1),
    Sketcher.Constraint("Coincident", 3, 2, 0, 1),
    Sketcher.Constraint("Horizontal", 0),
    Sketcher.Constraint("Vertical", 1),
    Sketcher.Constraint("Horizontal", 2),
    Sketcher.Constraint("Vertical", 3),
    Sketcher.Constraint("DistanceX", 0, 1, 0, 2, 1.5),
    Sketcher.Constraint("DistanceY", 1, 2, 1, 1, 8.493),
    Sketcher.Constraint("DistanceX", -1, 1, 0, 2, 13.2358),
    Sketcher.Constraint("DistanceY", -1, 1, 0, 2, 98.3572),
])
sketch12.setExpression("Constraints[8]", "Params.sketch12_width")
pocket9 = body.newObject("PartDesign::Pocket", "Pocket008")
pocket9.Profile = sketch12
pocket9.setExpression("Length", "Params.pocket9_length")
pocket9.Reversed = True

# Sketch on XZ plane
sketch13 = body.newObject("Sketcher::SketchObject", "Sketch012")
sketch13.AttachmentSupport = (doc.getObject("XZ_Plane"), [""])
sketch13.MapMode = "FlatFace"
sketch13.AttachmentOffset = App.Placement(V(0, 0, -19), App.Rotation())
sketch13.addGeometry([
    Part.LineSegment(V(21.5, 98.3, 0), V(23, 98.3, 0)),
    Part.LineSegment(V(23, 98.3, 0), V(23, 90.1, 0)),
    Part.LineSegment(V(23, 90.1, 0), V(21.5, 90.1, 0)),
    Part.LineSegment(V(21.5, 90.1, 0), V(21.5, 98.3, 0)),
], False)
sketch13.addConstraint([
    Sketcher.Constraint("Coincident", 0, 2, 1, 1),
    Sketcher.Constraint("Coincident", 1, 2, 2, 1),
    Sketcher.Constraint("Coincident", 2, 2, 3, 1),
    Sketcher.Constraint("Coincident", 3, 2, 0, 1),
    Sketcher.Constraint("Horizontal", 0),
    Sketcher.Constraint("Vertical", 1),
    Sketcher.Constraint("Horizontal", 2),
    Sketcher.Constraint("Vertical", 3),
    Sketcher.Constraint("DistanceX", 0, 1, 0, 2, 1.5),
    Sketcher.Constraint("DistanceY", 1, 2, 1, 1, 8.1644),
    Sketcher.Constraint("DistanceX", -1, 1, 0, 2, 23.001),
    Sketcher.Constraint("DistanceY", -1, 1, 0, 2, 98.2892),
])
sketch13.setExpression("Constraints[8]", "Params.sketch13_width")
pocket10 = body.newObject("PartDesign::Pocket", "Pocket009")
pocket10.Profile = sketch13
pocket10.setExpression("Length", "Params.pocket10_length")
pocket10.Reversed = True

# Sketch on XZ plane
sketch14 = body.newObject("Sketcher::SketchObject", "Sketch013")
sketch14.AttachmentSupport = (doc.getObject("XZ_Plane"), [""])
sketch14.MapMode = "FlatFace"
sketch14.AttachmentOffset = App.Placement(V(0, 0, -19), App.Rotation())
sketch14.addGeometry([
    Part.LineSegment(V(31.4, 98.8, 0), V(32.9, 98.8, 0)),
    Part.LineSegment(V(32.9, 98.8, 0), V(32.9, 89.8, 0)),
    Part.LineSegment(V(32.9, 89.8, 0), V(31.4, 89.8, 0)),
    Part.LineSegment(V(31.4, 89.8, 0), V(31.4, 98.8, 0)),
], False)
sketch14.addConstraint([
    Sketcher.Constraint("Coincident", 0, 2, 1, 1),
    Sketcher.Constraint("Coincident", 1, 2, 2, 1),
    Sketcher.Constraint("Coincident", 2, 2, 3, 1),
    Sketcher.Constraint("Coincident", 3, 2, 0, 1),
    Sketcher.Constraint("Horizontal", 0),
    Sketcher.Constraint("Vertical", 1),
    Sketcher.Constraint("Horizontal", 2),
    Sketcher.Constraint("Vertical", 3),
    Sketcher.Constraint("DistanceX", 0, 1, 0, 2, 1.5),
    Sketcher.Constraint("DistanceY", 1, 2, 1, 1, 9.0218),
    Sketcher.Constraint("DistanceY", -1, 1, 0, 2, 98.806),
    Sketcher.Constraint("DistanceX", -1, 1, 0, 2, 32.8676),
])
sketch14.setExpression("Constraints[8]", "Params.sketch14_width")
pocket11 = body.newObject("PartDesign::Pocket", "Pocket010")
pocket11.Profile = sketch14
pocket11.setExpression("Length", "Params.pocket11_length")
pocket11.Reversed = True

# Sketch on XZ plane
sketch15 = body.newObject("Sketcher::SketchObject", "Sketch014")
sketch15.AttachmentSupport = (doc.getObject("XZ_Plane"), [""])
sketch15.MapMode = "FlatFace"
sketch15.AttachmentOffset = App.Placement(V(0, 0, -30), App.Rotation())
sketch15.addGeometry([
    Part.Circle(V(-20, -58, 0), V(0, 0, 1), 26),
    Part.Circle(V(-20, -58, 0), V(0, 0, 1), 18),
], False)
sketch15.addConstraint([
    Sketcher.Constraint("Coincident", 1, 3, 0, 3),
    Sketcher.Constraint("Diameter", 0, 51.0),
    Sketcher.Constraint("DistanceX", 0, 3, -1, 1, 20.0),
    Sketcher.Constraint("Diameter", 1, 36.9048),
    Sketcher.Constraint("DistanceY", 0, 3, -1, 1, 58.5),
])
sketch15.setExpression("Constraints[1]", "Params.sketch15_diameter")
pocket12 = body.newObject("PartDesign::Pocket", "Pocket011")
pocket12.Profile = sketch15
pocket12.setExpression("Length", "Params.pocket12_length")
pocket12.Reversed = True

doc.recompute()
